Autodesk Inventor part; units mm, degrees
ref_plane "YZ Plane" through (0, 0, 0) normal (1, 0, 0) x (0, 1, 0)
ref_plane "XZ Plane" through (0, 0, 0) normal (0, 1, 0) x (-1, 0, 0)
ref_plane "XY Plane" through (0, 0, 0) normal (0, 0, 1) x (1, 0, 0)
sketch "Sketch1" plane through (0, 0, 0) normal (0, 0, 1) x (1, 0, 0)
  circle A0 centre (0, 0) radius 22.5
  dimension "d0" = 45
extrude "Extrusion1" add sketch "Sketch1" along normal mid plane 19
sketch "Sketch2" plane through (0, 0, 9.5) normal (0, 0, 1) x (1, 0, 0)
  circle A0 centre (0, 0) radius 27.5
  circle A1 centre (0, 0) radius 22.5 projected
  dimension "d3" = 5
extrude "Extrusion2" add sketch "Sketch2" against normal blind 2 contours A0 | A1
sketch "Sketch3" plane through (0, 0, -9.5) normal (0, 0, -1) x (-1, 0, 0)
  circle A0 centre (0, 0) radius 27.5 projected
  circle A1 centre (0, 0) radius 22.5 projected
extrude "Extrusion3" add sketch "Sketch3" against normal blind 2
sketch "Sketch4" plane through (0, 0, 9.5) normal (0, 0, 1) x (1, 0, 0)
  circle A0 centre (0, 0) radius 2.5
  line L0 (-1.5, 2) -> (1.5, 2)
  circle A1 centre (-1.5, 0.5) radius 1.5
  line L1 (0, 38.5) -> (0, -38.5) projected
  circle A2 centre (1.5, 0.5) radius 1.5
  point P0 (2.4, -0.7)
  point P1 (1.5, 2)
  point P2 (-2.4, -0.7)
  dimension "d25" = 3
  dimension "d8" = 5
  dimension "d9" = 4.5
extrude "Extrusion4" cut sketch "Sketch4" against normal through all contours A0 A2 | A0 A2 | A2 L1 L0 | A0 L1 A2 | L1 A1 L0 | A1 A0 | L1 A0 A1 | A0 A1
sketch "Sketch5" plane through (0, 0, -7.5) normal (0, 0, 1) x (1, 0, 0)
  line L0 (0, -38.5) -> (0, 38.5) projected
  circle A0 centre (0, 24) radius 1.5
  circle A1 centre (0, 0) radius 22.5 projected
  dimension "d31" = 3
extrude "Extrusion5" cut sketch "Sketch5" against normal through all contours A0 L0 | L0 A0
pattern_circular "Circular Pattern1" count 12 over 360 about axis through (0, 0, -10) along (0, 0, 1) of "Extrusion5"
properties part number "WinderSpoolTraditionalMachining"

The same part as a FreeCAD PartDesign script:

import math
import FreeCAD as App
import Part
import Sketcher
from FreeCAD import Vector
Q = App.Units.Quantity

doc = App.newDocument("Part")
params = doc.addObject("Spreadsheet::Sheet", "Params")
for row, (alias, value) in enumerate([
    ("sketch1_diameter", "45 mm"),
    ("pad1_length", "19 mm"),
    ("sketch2_diameter", "55 mm"),
    ("pad2_length", "2 mm"),
    ("sketch3_diameter", "55 mm"),
    ("sketch3_diameter2", "45 mm"),
    ("pad3_length", "2 mm"),
    ("sketch4_radius", "1.5 mm"),
    ("sketch4_radius2", "2.5 mm"),
    ("sketch4_width", "3 mm"),
    ("sketch5_diameter", "3 mm"),
], start=1):
    params.set(f"A{row}", alias)
    params.set(f"B{row}", "=" + value)
    params.setAlias(f"B{row}", alias)

body = doc.addObject("PartDesign::Body", "Body")

# Sketch on XY plane
sketch1 = body.newObject("Sketcher::SketchObject", "Sketch")
sketch1.AttachmentSupport = (doc.getObject("XY_Plane"), [""])
sketch1.MapMode = "FlatFace"
sketch1.addGeometry(Part.Circle(Vector(0, 0, 0), Vector(0, 0, 1), 22.5), False)
sketch1.addConstraint([
    Sketcher.Constraint("Coincident", 0, 3, -1, 1),
    Sketcher.Constraint("Diameter", 0, Q("45 mm")),
])
sketch1.setExpression("Constraints[1]", "Params.sketch1_diameter")
pad1 = body.newObject("PartDesign::Pad", "Pad")
pad1.Profile = sketch1
pad1.setExpression("Length", "Params.pad1_length")
pad1.Midplane = True

# Sketch on XY plane
sketch2 = body.newObject("Sketcher::SketchObject", "Sketch001")
sketch2.AttachmentSupport = (doc.getObject("XY_Plane"), [""])
sketch2.MapMode = "FlatFace"
sketch2.AttachmentOffset = App.Placement(Vector(0, 0, 9.5), App.Rotation())
sketch2.addGeometry(Part.Circle(Vector(0, 0, 0), Vector(0, 0, 1), 27.5), False)
sketch2.addConstraint([
    Sketcher.Constraint("Coincident", 0, 3, -1, 1),
    Sketcher.Constraint("Diameter", 0, Q("55 mm")),
])
sketch2.setExpression("Constraints[1]", "Params.sketch2_diameter")
pad2 = body.newObject("PartDesign::Pad", "Pad001")
pad2.Profile = sketch2
pad2.setExpression("Length", "Params.pad2_length")
pad2.Reversed = True

# Sketch on XY plane
sketch3 = body.newObject("Sketcher::SketchObject", "Sketch002")
sketch3.AttachmentSupport = (doc.getObject("XY_Plane"), [""])
sketch3.MapMode = "FlatFace"
sketch3.AttachmentOffset = App.Placement(Vector(0, 0, -9.5), App.Rotation())
sketch3.addGeometry([
    Part.Circle(Vector(0, 0, 0), Vector(0, 0, 1), 27.5),
    Part.Circle(Vector(0, 0, 0), Vector(0, 0, 1), 22.5),
], False)
sketch3.addConstraint([
    Sketcher.Constraint("Coincident", 0, 3, -1, 1),
    Sketcher.Constraint("Coincident", 1, 3, -1, 1),
    Sketcher.Constraint("Diameter", 0, Q("55 mm")),
    Sketcher.Constraint("Diameter", 1, Q("45 mm")),
])
sketch3.setExpression("Constraints[2]", "Params.sketch3_diameter")
sketch3.setExpression("Constraints[3]", "Params.sketch3_diameter2")
pad3 = body.newObject("PartDesign::Pad", "Pad002")
pad3.Profile = sketch3
pad3.setExpression("Length", "Params.pad3_length")

# Sketch on XY plane
sketch4 = body.newObject("Sketcher::SketchObject", "Sketch003")
sketch4.AttachmentSupport = (doc.getObject("XY_Plane"), [""])
sketch4.MapMode = "FlatFace"
sketch4.AttachmentOffset = App.Placement(Vector(0, 0, 9.5), App.Rotation())
sketch4.addGeometry([
    Part.ArcOfCircle(Part.Circle(Vector(1.5, 0.5, 0), Vector(0, 0, 1), 1.5), math.radians(-53.130102), math.radians(90)),
    Part.LineSegment(Vector(1.5, 2, 0), Vector(-1.5, 2, 0)),
    Part.ArcOfCircle(Part.Circle(Vector(-1.5, 0.5, 0), Vector(0, 0, 1), 1.5), math.radians(90), math.radians(233.130102)),
    Part.ArcOfCircle(Part.Circle(Vector(0, 0, 0), Vector(0, 0, 1), 2.5), math.radians(-163.739795), math.radians(-16.260205)),
], False)
sketch4.addConstraint([
    Sketcher.Constraint("Tangent", 0, 2, 1, 1),
    Sketcher.Constraint("Tangent", 1, 2, 2, 1),
    Sketcher.Constraint("Coincident", 2, 2, 3, 1),
    Sketcher.Constraint("Coincident", 3, 2, 0, 1),
    Sketcher.Constraint("Horizontal", 1),
    Sketcher.Constraint("Coincident", 3, 3, -1, 1),
    Sketcher.Constraint("Equal", 0, 2),
    Sketcher.Constraint("Horizontal", 2, 2, 3, 2),
    Sketcher.Constraint("Radius", 0, Q("1.5 mm")),
    Sketcher.Constraint("Radius", 3, Q("2.5 mm")),
    Sketcher.Constraint("DistanceX", 1, 2, 1, 1, Q("3 mm")),
    Sketcher.Constraint("DistanceY", -1, 1, 0, 2, Q("2 mm")),
])
sketch4.setExpression("Constraints[8]", "Params.sketch4_radius")
sketch4.setExpression("Constraints[9]", "Params.sketch4_radius2")
sketch4.setExpression("Constraints[10]", "Params.sketch4_width")
pocket1 = body.newObject("PartDesign::Pocket", "Pocket")
pocket1.Profile = sketch4
pocket1.Type = "ThroughAll"

# Sketch on XY plane
sketch5 = body.newObject("Sketcher::SketchObject", "Sketch004")
sketch5.AttachmentSupport = (doc.getObject("XY_Plane"), [""])
sketch5.MapMode = "FlatFace"
sketch5.AttachmentOffset = App.Placement(Vector(0, 0, -7.5), App.Rotation())
sketch5.addGeometry(Part.Circle(Vector(0, 24, 0), Vector(0, 0, 1), 1.5), False)
sketch5.addConstraint([
    Sketcher.Constraint("PointOnObject", 0, 3, -2),
    Sketcher.Constraint("Diameter", 0, Q("3 mm")),
    Sketcher.Constraint("DistanceY", -1, 1, 0, 3, Q("24 mm")),
])
sketch5.setExpression("Constraints[1]", "Params.sketch5_diameter")
pocket2 = body.newObject("PartDesign::Pocket", "Pocket001")
pocket2.Profile = sketch5
pocket2.Type = "ThroughAll"
doc.recompute()

polarpattern = body.newObject("PartDesign::PolarPattern", "PolarPattern")
polarpattern.Originals = [pocket2]
polarpattern.Axis = (doc.getObject("Z_Axis"), [""])
polarpattern.Angle = 360
polarpattern.Occurrences = 12
body.Tip = polarpattern

doc.recompute()
